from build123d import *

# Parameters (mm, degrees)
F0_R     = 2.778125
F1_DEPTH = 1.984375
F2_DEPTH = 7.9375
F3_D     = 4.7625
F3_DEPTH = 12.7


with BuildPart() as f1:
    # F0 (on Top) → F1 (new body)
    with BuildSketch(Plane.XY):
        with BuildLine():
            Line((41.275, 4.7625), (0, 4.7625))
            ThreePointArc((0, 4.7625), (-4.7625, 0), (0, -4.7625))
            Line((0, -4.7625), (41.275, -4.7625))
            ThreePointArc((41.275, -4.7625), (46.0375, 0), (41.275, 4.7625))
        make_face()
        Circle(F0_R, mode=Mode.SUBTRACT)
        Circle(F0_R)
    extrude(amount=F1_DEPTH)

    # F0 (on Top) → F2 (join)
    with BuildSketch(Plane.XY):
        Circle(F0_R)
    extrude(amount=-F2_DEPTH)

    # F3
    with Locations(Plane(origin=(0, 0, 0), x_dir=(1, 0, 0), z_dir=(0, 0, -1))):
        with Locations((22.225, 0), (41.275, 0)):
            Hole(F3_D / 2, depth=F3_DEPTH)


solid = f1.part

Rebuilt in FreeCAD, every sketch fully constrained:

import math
import FreeCAD as App
import Part
import Sketcher
Q = App.Units.Quantity

doc = App.newDocument("Part")
params = doc.addObject("Spreadsheet::Sheet", "Params")
for row, (alias, value) in enumerate([
    ("sketch1_radius", "0.1875 in"),
    ("sketch1_width", "1.625 in"),
    ("pad1_length", "0.078125 in"),
    ("sketch2_diameter", "0.21875 in"),
    ("pad2_length", "0.3125 in"),
    ("sketch3_diameter", "0.1875 in"),
    ("hole_diameter", "0.1875 in"),
    ("hole_depth", "0.5 in"),
], start=1):
    params.set(f"A{row}", alias)
    params.set(f"B{row}", "=" + value)
    params.setAlias(f"B{row}", alias)

body = doc.addObject("PartDesign::Body", "Body")

# Sketch on XY plane
sketch1 = body.newObject("Sketcher::SketchObject", "Sketch")
sketch1.AttachmentSupport = (doc.getObject("XY_Plane"), [""])
sketch1.MapMode = "FlatFace"
sketch1.addGeometry(Part.LineSegment(App.Vector(41.275, 4.7625, 0), App.Vector(0, 4.7625, 0)), False)
sketch1.addGeometry(Part.ArcOfCircle(Part.Circle(App.Vector(0, 0, 0), App.Vector(0, 0, 1), 4.7625), math.radians(90), math.radians(270)), False)
sketch1.addGeometry(Part.LineSegment(App.Vector(0, -4.7625, 0), App.Vector(41.275, -4.7625, 0)), False)
sketch1.addGeometry(Part.ArcOfCircle(Part.Circle(App.Vector(41.275, 0, 0), App.Vector(0, 0, 1), 4.7625), math.radians(-90), math.radians(90)), False)
sketch1.addConstraint(Sketcher.Constraint("Tangent", 0, 2, 1, 1))
sketch1.addConstraint(Sketcher.Constraint("Tangent", 1, 2, 2, 1))
sketch1.addConstraint(Sketcher.Constraint("Tangent", 2, 2, 3, 1))
sketch1.addConstraint(Sketcher.Constraint("Tangent", 3, 2, 0, 1))
sketch1.addConstraint(Sketcher.Constraint("Horizontal", 0))
sketch1.addConstraint(Sketcher.Constraint("Horizontal", 2))
sketch1.addConstraint(Sketcher.Constraint("Coincident", 1, 3, -1, 1))
sketch1.addConstraint(Sketcher.Constraint("Radius", 1, Q("0.1875 in")))
sketch1.addConstraint(Sketcher.Constraint("DistanceX", 0, 2, 0, 1, Q("1.625 in")))
sketch1.setExpression("Constraints[7]", "Params.sketch1_radius")
sketch1.setExpression("Constraints[8]", "Params.sketch1_width")
pad1 = body.newObject("PartDesign::Pad", "Pad")
pad1.Profile = sketch1
pad1.setExpression("Length", "Params.pad1_length")

# Sketch on XY plane
sketch2 = body.newObject("Sketcher::SketchObject", "Sketch001")
sketch2.AttachmentSupport = (doc.getObject("XY_Plane"), [""])
sketch2.MapMode = "FlatFace"
sketch2.addGeometry(Part.Circle(App.Vector(0, 0, 0), App.Vector(0, 0, 1), 2.778125), False)
sketch2.addConstraint(Sketcher.Constraint("Coincident", 0, 3, -1, 1))
sketch2.addConstraint(Sketcher.Constraint("Diameter", 0, Q("0.21875 in")))
sketch2.setExpression("Constraints[1]", "Params.sketch2_diameter")
pad2 = body.newObject("PartDesign::Pad", "Pad001")
pad2.Profile = sketch2
pad2.setExpression("Length", "Params.pad2_length")
pad2.Reversed = True

# Sketch on XY plane
sketch3 = body.newObject("Sketcher::SketchObject", "Sketch002")
sketch3.AttachmentSupport = (doc.getObject("XY_Plane"), [""])
sketch3.MapMode = "FlatFace"
sketch3.addGeometry(Part.Circle(App.Vector(22.225, 0, 0), App.Vector(0, 0, 1), 2.38125), False)
sketch3.addGeometry(Part.Circle(App.Vector(41.275, 0, 0), App.Vector(0, 0, 1), 2.38125), False)
sketch3.addConstraint(Sketcher.Constraint("Equal", 0, 1))
sketch3.addConstraint(Sketcher.Constraint("PointOnObject", 0, 3, -1))
sketch3.addConstraint(Sketcher.Constraint("PointOnObject", 1, 3, -1))
sketch3.addConstraint(Sketcher.Constraint("Diameter", 0, Q("0.1875 in")))
sketch3.addConstraint(Sketcher.Constraint("DistanceX", 0, 3, 1, 3, Q("0.75 in")))
sketch3.addConstraint(Sketcher.Constraint("DistanceX", -1, 1, 0, 3, Q("0.875 in")))
sketch3.setExpression("Constraints[3]", "Params.sketch3_diameter")
doc.recompute()
hole = body.newObject("PartDesign::Hole", "Hole")
hole.Profile = sketch3
hole.ThreadType = "None"
hole.setExpression("Diameter", "Params.hole_diameter")
hole.DepthType = "Dimension"
hole.setExpression("Depth", "Params.hole_depth")
hole.DrillPoint = "Flat"
hole.Reversed = True

doc.recompute()
